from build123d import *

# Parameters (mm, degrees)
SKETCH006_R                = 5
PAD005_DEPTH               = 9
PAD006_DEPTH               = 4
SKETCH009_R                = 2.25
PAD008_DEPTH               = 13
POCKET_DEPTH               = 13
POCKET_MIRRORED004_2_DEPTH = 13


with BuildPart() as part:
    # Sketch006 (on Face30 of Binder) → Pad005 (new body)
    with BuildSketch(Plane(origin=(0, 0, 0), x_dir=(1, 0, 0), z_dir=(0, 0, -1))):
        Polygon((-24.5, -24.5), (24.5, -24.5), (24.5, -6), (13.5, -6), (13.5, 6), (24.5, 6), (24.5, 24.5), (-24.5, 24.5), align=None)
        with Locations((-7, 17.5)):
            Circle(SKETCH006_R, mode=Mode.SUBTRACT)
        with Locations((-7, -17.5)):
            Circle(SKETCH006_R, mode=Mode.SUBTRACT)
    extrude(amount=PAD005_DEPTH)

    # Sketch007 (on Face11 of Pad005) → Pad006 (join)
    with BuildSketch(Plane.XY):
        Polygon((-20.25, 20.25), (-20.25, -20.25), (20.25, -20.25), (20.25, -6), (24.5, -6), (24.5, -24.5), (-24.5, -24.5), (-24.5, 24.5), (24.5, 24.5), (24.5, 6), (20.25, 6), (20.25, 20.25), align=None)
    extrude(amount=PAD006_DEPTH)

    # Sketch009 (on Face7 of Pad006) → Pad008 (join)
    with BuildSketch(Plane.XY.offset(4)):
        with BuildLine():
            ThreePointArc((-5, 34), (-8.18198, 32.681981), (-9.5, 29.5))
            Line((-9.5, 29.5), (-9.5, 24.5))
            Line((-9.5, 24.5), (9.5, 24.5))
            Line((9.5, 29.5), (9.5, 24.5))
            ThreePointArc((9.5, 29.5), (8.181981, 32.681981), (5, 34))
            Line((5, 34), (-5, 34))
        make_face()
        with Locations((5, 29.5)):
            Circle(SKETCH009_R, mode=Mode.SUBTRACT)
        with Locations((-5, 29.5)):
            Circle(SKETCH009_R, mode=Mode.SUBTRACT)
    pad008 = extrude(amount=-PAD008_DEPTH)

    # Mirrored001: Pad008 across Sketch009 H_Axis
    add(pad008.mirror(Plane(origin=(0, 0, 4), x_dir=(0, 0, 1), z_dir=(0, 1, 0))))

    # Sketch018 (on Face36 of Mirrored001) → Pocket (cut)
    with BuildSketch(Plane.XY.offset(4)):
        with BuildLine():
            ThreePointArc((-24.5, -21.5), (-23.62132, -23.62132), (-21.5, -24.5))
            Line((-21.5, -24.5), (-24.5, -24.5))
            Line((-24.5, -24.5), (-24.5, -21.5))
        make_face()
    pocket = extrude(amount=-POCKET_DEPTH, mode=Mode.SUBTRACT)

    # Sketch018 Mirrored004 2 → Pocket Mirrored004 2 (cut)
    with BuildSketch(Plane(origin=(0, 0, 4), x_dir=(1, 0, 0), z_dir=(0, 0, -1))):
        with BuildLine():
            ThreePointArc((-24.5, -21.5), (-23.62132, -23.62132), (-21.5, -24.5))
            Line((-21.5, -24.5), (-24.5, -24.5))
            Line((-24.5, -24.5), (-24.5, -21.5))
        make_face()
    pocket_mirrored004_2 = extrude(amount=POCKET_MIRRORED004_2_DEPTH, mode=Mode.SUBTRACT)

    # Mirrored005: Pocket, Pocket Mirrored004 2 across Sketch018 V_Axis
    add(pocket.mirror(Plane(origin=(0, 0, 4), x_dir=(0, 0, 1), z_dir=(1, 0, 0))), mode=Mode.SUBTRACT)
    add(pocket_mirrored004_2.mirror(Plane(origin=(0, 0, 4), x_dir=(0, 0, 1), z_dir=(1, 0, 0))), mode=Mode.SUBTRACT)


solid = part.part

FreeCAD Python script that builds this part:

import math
import FreeCAD as App
import Part
import Sketcher

V = App.Vector

doc = App.newDocument("Part")
body = doc.addObject("PartDesign::Body", "Body")

# Sketch on XY plane
sketch1 = body.newObject("Sketcher::SketchObject", "Sketch")
sketch1.AttachmentSupport = (doc.getObject("XY_Plane"), [""])
sketch1.MapMode = "FlatFace"
sketch1.addGeometry([
    Part.LineSegment(V(-24, 24, 0), V(24, 24, 0)),  # 0
    Part.LineSegment(V(24, 24, 0), V(24, 6, 0)),  # 1
    Part.LineSegment(V(24, 6, 0), V(14, 6, 0)),  # 2
    Part.LineSegment(V(14, 6, 0), V(14, -6, 0)),  # 3
    Part.LineSegment(V(14, -6, 0), V(24, -6, 0)),  # 4
    Part.LineSegment(V(24, -6, 0), V(24, -24, 0)),  # 5
    Part.LineSegment(V(24, -24, 0), V(-24, -24, 0)),  # 6
    Part.LineSegment(V(-24, -24, 0), V(-24, 24, 0)),  # 7
    Part.Circle(V(-7, 18, 0), V(0, 0, 1), 5),  # 8
    Part.Circle(V(-7, -18, 0), V(0, 0, 1), 5),  # 9
], False)
sketch1.addConstraint([
    Sketcher.Constraint("Coincident", 0, 2, 1, 1),
    Sketcher.Constraint("Coincident", 1, 2, 2, 1),
    Sketcher.Constraint("Coincident", 2, 2, 3, 1),
    Sketcher.Constraint("Coincident", 3, 2, 4, 1),
    Sketcher.Constraint("Coincident", 4, 2, 5, 1),
    Sketcher.Constraint("Coincident", 5, 2, 6, 1),
    Sketcher.Constraint("Coincident", 6, 2, 7, 1),
    Sketcher.Constraint("Coincident", 7, 2, 0, 1),
    Sketcher.Constraint("Horizontal", 0),
    Sketcher.Constraint("Vertical", 1),
    Sketcher.Constraint("Horizontal", 2),
    Sketcher.Constraint("Vertical", 3),
    Sketcher.Constraint("Horizontal", 4),
    Sketcher.Constraint("Vertical", 5),
    Sketcher.Constraint("Horizontal", 6),
    Sketcher.Constraint("Vertical", 7),
    Sketcher.Constraint("Equal", 8, 9),
    Sketcher.Constraint("Symmetric", 0, 2, 6, 2, -1, 1),
    Sketcher.Constraint("Symmetric", 8, 3, 9, 3, -1),
    Sketcher.Constraint("Symmetric", 1, 2, 4, 2, -1),
    Sketcher.Constraint("Equal", 6, 7),
    Sketcher.Constraint("Diameter", 8, 10.0),
    Sketcher.Constraint("DistanceX", 0, 1, 0, 2, 49.0),
    Sketcher.Constraint("DistanceX", 2, 2, 2, 1, 11.0),
    Sketcher.Constraint("DistanceY", 3, 2, 3, 1, 12.0),
    Sketcher.Constraint("DistanceX", 8, 3, -1, 1, 7.0),
    Sketcher.Constraint("DistanceY", 9, 3, 8, 3, 35.0),
])
pad1 = body.newObject("PartDesign::Pad", "Pad")
pad1.Profile = sketch1
pad1.Length = 9
pad1.Reversed = True

# Sketch on XY plane
sketch2 = body.newObject("Sketcher::SketchObject", "Sketch001")
sketch2.AttachmentSupport = (doc.getObject("XY_Plane"), [""])
sketch2.MapMode = "FlatFace"
sketch2.addGeometry([
    Part.LineSegment(V(-20.2, -20.2, 0), V(-20.2, 20.2, 0)),  # 0
    Part.LineSegment(V(-20.2, 20.2, 0), V(20.2, 20.2, 0)),  # 1
    Part.LineSegment(V(20.2, 20.2, 0), V(20.2, 6, 0)),  # 2
    Part.LineSegment(V(20.2, 6, 0), V(24.5, 6, 0)),  # 3
    Part.LineSegment(V(24.5, 6, 0), V(24.5, 24.5, 0)),  # 4
    Part.LineSegment(V(24.5, 24.5, 0), V(-24.5, 24.5, 0)),  # 5
    Part.LineSegment(V(-24.5, 24.5, 0), V(-24.5, -24.5, 0)),  # 6
    Part.LineSegment(V(-24.5, -24.5, 0), V(24.5, -24.5, 0)),  # 7
    Part.LineSegment(V(24.5, -24.5, 0), V(24.5, -6, 0)),  # 8
    Part.LineSegment(V(24.5, -6, 0), V(20.2, -6, 0)),  # 9
    Part.LineSegment(V(20.2, -6, 0), V(20.2, -20.2, 0)),  # 10
    Part.LineSegment(V(20.2, -20.2, 0), V(-20.2, -20.2, 0)),  # 11
], False)
sketch2.addConstraint([
    Sketcher.Constraint("Coincident", 0, 2, 1, 1),
    Sketcher.Constraint("Coincident", 1, 2, 2, 1),
    Sketcher.Constraint("Coincident", 2, 2, 3, 1),
    Sketcher.Constraint("Coincident", 3, 2, 4, 1),
    Sketcher.Constraint("Coincident", 4, 2, 5, 1),
    Sketcher.Constraint("Coincident", 5, 2, 6, 1),
    Sketcher.Constraint("Coincident", 6, 2, 7, 1),
    Sketcher.Constraint("Coincident", 7, 2, 8, 1),
    Sketcher.Constraint("Coincident", 8, 2, 9, 1),
    Sketcher.Constraint("Coincident", 9, 2, 10, 1),
    Sketcher.Constraint("Coincident", 10, 2, 11, 1),
    Sketcher.Constraint("Coincident", 11, 2, 0, 1),
    Sketcher.Constraint("Vertical", 0),
    Sketcher.Constraint("Horizontal", 1),
    Sketcher.Constraint("Vertical", 2),
    Sketcher.Constraint("Horizontal", 3),
    Sketcher.Constraint("Vertical", 4),
    Sketcher.Constraint("Horizontal", 5),
    Sketcher.Constraint("Vertical", 6),
    Sketcher.Constraint("Horizontal", 7),
    Sketcher.Constraint("Vertical", 8),
    Sketcher.Constraint("Horizontal", 9),
    Sketcher.Constraint("Vertical", 10),
    Sketcher.Constraint("Horizontal", 11),
    Sketcher.Constraint("Symmetric", 4, 2, 6, 2, -1, 1),
    Sketcher.Constraint("Symmetric", 0, 2, 10, 2, -1, 1),
    Sketcher.Constraint("Symmetric", 3, 2, 8, 2, -1),
    Sketcher.Constraint("Vertical", 2, 2, 9, 2),
    Sketcher.Constraint("Equal", 11, 0),
    Sketcher.Constraint("Equal", 7, 6),
    Sketcher.Constraint("DistanceX", 5, 2, 5, 1, 49.0),
    Sketcher.Constraint("DistanceX", 1, 1, 1, 2, 40.5),
    Sketcher.Constraint("DistanceY", 4, 1, 4, 2, 18.5),
])
pad2 = body.newObject("PartDesign::Pad", "Pad001")
pad2.Profile = sketch2
pad2.Length = 4

# Sketch on XY plane
sketch3 = body.newObject("Sketcher::SketchObject", "Sketch002")
sketch3.AttachmentSupport = (doc.getObject("XY_Plane"), [""])
sketch3.MapMode = "FlatFace"
sketch3.AttachmentOffset = App.Placement(V(0, 0, 4), App.Rotation())
sketch3.addGeometry([
    Part.ArcOfCircle(Part.Circle(V(-5, 29.5, 0), V(0, 0, 1), 4.5), math.radians(90), math.radians(180)),  # 0
    Part.LineSegment(V(-9.5, 29.5, 0), V(-9.5, 24.5, 0)),  # 1
    Part.LineSegment(V(-9.5, 24.5, 0), V(9.5, 24.5, 0)),  # 2
    Part.LineSegment(V(9.5, 24.5, 0), V(9.5, 29.5, 0)),  # 3
    Part.ArcOfCircle(Part.Circle(V(5, 29.5, 0), V(0, 0, 1), 4.5), math.radians(0), math.radians(90)),  # 4
    Part.LineSegment(V(5, 34, 0), V(-5, 34, 0)),  # 5
    Part.Circle(V(-5, 29.5, 0), V(0, 0, 1), 2.2),  # 6
    Part.Circle(V(5, 29.5, 0), V(0, 0, 1), 2.2),  # 7
], False)
sketch3.addConstraint([
    Sketcher.Constraint("Tangent", 0, 2, 1, 1),
    Sketcher.Constraint("Coincident", 1, 2, 2, 1),
    Sketcher.Constraint("Coincident", 2, 2, 3, 1),
    Sketcher.Constraint("Tangent", 3, 2, 4, 1),
    Sketcher.Constraint("Tangent", 4, 2, 5, 1),
    Sketcher.Constraint("Tangent", 5, 2, 0, 1),
    Sketcher.Constraint("Vertical", 1),
    Sketcher.Constraint("Horizontal", 2),
    Sketcher.Constraint("Vertical", 3),
    Sketcher.Constraint("Horizontal", 5),
    Sketcher.Constraint("Coincident", 6, 3, 0, 3),
    Sketcher.Constraint("Coincident", 7, 3, 4, 3),
    Sketcher.Constraint("Equal", 0, 4),
    Sketcher.Constraint("Equal", 6, 7),
    Sketcher.Constraint("Diameter", 6, 4.5),
    Sketcher.Constraint("Radius", 0, 4.5),
    Sketcher.Constraint("DistanceX", 2, 1, 2, 2, 19.0),
    Sketcher.Constraint("DistanceY", 1, 2, 1, 1, 5.0),
    Sketcher.Constraint("DistanceX", 0, 3, -1, 1, 5.0),
    Sketcher.Constraint("DistanceY", -1, 1, 4, 2, 34.0),
])
pad3 = body.newObject("PartDesign::Pad", "Pad002")
pad3.Profile = sketch3
pad3.Length = 13
pad3.Reversed = True
doc.recompute()

mirrored = body.newObject("PartDesign::Mirrored", "Mirrored")
mirrored.Originals = [pad3]
mirrored.MirrorPlane = (doc.getObject("XZ_Plane"), [""])
body.Tip = mirrored

# Sketch on XY plane
sketch4 = body.newObject("Sketcher::SketchObject", "Sketch003")
sketch4.AttachmentSupport = (doc.getObject("XY_Plane"), [""])
sketch4.MapMode = "FlatFace"
sketch4.AttachmentOffset = App.Placement(V(0, 0, 4), App.Rotation())
sketch4.addGeometry([
    Part.ArcOfCircle(Part.Circle(V(-21.5, -21.5, 0), V(0, 0, 1), 3), math.radians(-180), math.radians(-90)),
    Part.LineSegment(V(-24.5, -21.5, 0), V(-24.5, -24.5, 0)),
    Part.LineSegment(V(-24.5, -24.5, 0), V(-21.5, -24.5, 0)),
], False)
sketch4.addConstraint([
    Sketcher.Constraint("Tangent", 0, 1, 1, 1),
    Sketcher.Constraint("Coincident", 1, 2, 2, 1),
    Sketcher.Constraint("Tangent", 2, 2, 0, 2),
    Sketcher.Constraint("Vertical", 1),
    Sketcher.Constraint("Horizontal", 2),
    Sketcher.Constraint("Radius", 0, 3.000001),
    Sketcher.Constraint("DistanceX", 0, 3, -1, 1, 21.499999),
    Sketcher.Constraint("DistanceY", 0, 3, -1, 1, 21.499999),
])
pocket1 = body.newObject("PartDesign::Pocket", "Pocket")
pocket1.Profile = sketch4
pocket1.Length = 13

# Sketch on XY plane
sketch5 = body.newObject("Sketcher::SketchObject", "Sketch004")
sketch5.AttachmentSupport = (doc.getObject("XY_Plane"), [""])
sketch5.MapMode = "FlatFace"
sketch5.AttachmentOffset = App.Placement(V(0, 0, 4), App.Rotation())
sketch5.addGeometry([
    Part.ArcOfCircle(Part.Circle(V(-21.5, 21.5, 0), V(0, 0, 1), 3), math.radians(90), math.radians(180)),
    Part.LineSegment(V(-24.5, 21.5, 0), V(-24.5, 24.5, 0)),
    Part.LineSegment(V(-24.5, 24.5, 0), V(-21.5, 24.5, 0)),
], False)
sketch5.addConstraint([
    Sketcher.Constraint("Tangent", 0, 2, 1, 1),
    Sketcher.Constraint("Coincident", 1, 2, 2, 1),
    Sketcher.Constraint("Tangent", 2, 2, 0, 1),
    Sketcher.Constraint("Vertical", 1),
    Sketcher.Constraint("Horizontal", 2),
    Sketcher.Constraint("Radius", 0, 3.000001),
    Sketcher.Constraint("DistanceX", 0, 3, -1, 1, 21.499999),
    Sketcher.Constraint("DistanceY", -1, 1, 0, 3, 21.499999),
])
pocket2 = body.newObject("PartDesign::Pocket", "Pocket001")
pocket2.Profile = sketch5
pocket2.Length = 13
doc.recompute()

mirrored2 = body.newObject("PartDesign::Mirrored", "Mirrored001")
mirrored2.Originals = [pocket1, pocket2]
mirrored2.MirrorPlane = (doc.getObject("YZ_Plane"), [""])
body.Tip = mirrored2

doc.recompute()
